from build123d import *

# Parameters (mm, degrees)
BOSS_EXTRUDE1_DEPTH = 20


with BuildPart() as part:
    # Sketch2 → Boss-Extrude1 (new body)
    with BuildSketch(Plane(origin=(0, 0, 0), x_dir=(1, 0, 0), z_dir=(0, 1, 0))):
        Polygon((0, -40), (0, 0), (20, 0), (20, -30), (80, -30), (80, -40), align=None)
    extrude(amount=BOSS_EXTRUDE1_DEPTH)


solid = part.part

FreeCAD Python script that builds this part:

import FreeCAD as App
import Part
import Sketcher

V = App.Vector
Q = App.Units.Quantity


def add_polygon(sketch, points):
    """Adds a closed chain of lines whose ends are joined by coincident constraints."""
    first, n = sketch.GeometryCount, len(points)
    for a, b in zip(points, points[1:] + points[:1]):
        sketch.addGeometry(Part.LineSegment(App.Vector(*a, 0), App.Vector(*b, 0)), False)
    for i in range(n):
        sketch.addConstraint(Sketcher.Constraint("Coincident", first + i, 2, first + (i + 1) % n, 1))

doc = App.newDocument("Part")
body = doc.addObject("PartDesign::Body", "Body")

sketch1 = doc.addObject("Sketcher::SketchObject", "Sketch")
body.addObject(sketch1)
sketch1.AttachmentSupport = (doc.XZ_Plane, [""])
sketch1.MapMode = "FlatFace"
add_polygon(sketch1, [(0, 0), (0, 40), (80, 40), (80, 30), (20, 30), (20, 0)])
sketch1.addConstraint([
    Sketcher.Constraint("Vertical", 0),
    Sketcher.Constraint("Horizontal", 1),
    Sketcher.Constraint("Vertical", 2),
    Sketcher.Constraint("Horizontal", 3),
    Sketcher.Constraint("Vertical", 4),
    Sketcher.Constraint("Horizontal", 5),
    Sketcher.Constraint("Coincident", 5, 2, -1, 1),
    Sketcher.Constraint("DistanceX", 1, 1, 1, 2, Q("80 mm")),
    Sketcher.Constraint("DistanceX", 3, 2, 3, 1, Q("60 mm")),
    Sketcher.Constraint("DistanceY", 0, 1, 0, 2, Q("40 mm")),
    Sketcher.Constraint("DistanceY", 2, 2, 2, 1, Q("10 mm")),
])
pad1 = doc.addObject("PartDesign::Pad", "Pad")
body.addObject(pad1)
pad1.Profile = sketch1
pad1.Length = 20
pad1.Reversed = True

doc.recompute()
